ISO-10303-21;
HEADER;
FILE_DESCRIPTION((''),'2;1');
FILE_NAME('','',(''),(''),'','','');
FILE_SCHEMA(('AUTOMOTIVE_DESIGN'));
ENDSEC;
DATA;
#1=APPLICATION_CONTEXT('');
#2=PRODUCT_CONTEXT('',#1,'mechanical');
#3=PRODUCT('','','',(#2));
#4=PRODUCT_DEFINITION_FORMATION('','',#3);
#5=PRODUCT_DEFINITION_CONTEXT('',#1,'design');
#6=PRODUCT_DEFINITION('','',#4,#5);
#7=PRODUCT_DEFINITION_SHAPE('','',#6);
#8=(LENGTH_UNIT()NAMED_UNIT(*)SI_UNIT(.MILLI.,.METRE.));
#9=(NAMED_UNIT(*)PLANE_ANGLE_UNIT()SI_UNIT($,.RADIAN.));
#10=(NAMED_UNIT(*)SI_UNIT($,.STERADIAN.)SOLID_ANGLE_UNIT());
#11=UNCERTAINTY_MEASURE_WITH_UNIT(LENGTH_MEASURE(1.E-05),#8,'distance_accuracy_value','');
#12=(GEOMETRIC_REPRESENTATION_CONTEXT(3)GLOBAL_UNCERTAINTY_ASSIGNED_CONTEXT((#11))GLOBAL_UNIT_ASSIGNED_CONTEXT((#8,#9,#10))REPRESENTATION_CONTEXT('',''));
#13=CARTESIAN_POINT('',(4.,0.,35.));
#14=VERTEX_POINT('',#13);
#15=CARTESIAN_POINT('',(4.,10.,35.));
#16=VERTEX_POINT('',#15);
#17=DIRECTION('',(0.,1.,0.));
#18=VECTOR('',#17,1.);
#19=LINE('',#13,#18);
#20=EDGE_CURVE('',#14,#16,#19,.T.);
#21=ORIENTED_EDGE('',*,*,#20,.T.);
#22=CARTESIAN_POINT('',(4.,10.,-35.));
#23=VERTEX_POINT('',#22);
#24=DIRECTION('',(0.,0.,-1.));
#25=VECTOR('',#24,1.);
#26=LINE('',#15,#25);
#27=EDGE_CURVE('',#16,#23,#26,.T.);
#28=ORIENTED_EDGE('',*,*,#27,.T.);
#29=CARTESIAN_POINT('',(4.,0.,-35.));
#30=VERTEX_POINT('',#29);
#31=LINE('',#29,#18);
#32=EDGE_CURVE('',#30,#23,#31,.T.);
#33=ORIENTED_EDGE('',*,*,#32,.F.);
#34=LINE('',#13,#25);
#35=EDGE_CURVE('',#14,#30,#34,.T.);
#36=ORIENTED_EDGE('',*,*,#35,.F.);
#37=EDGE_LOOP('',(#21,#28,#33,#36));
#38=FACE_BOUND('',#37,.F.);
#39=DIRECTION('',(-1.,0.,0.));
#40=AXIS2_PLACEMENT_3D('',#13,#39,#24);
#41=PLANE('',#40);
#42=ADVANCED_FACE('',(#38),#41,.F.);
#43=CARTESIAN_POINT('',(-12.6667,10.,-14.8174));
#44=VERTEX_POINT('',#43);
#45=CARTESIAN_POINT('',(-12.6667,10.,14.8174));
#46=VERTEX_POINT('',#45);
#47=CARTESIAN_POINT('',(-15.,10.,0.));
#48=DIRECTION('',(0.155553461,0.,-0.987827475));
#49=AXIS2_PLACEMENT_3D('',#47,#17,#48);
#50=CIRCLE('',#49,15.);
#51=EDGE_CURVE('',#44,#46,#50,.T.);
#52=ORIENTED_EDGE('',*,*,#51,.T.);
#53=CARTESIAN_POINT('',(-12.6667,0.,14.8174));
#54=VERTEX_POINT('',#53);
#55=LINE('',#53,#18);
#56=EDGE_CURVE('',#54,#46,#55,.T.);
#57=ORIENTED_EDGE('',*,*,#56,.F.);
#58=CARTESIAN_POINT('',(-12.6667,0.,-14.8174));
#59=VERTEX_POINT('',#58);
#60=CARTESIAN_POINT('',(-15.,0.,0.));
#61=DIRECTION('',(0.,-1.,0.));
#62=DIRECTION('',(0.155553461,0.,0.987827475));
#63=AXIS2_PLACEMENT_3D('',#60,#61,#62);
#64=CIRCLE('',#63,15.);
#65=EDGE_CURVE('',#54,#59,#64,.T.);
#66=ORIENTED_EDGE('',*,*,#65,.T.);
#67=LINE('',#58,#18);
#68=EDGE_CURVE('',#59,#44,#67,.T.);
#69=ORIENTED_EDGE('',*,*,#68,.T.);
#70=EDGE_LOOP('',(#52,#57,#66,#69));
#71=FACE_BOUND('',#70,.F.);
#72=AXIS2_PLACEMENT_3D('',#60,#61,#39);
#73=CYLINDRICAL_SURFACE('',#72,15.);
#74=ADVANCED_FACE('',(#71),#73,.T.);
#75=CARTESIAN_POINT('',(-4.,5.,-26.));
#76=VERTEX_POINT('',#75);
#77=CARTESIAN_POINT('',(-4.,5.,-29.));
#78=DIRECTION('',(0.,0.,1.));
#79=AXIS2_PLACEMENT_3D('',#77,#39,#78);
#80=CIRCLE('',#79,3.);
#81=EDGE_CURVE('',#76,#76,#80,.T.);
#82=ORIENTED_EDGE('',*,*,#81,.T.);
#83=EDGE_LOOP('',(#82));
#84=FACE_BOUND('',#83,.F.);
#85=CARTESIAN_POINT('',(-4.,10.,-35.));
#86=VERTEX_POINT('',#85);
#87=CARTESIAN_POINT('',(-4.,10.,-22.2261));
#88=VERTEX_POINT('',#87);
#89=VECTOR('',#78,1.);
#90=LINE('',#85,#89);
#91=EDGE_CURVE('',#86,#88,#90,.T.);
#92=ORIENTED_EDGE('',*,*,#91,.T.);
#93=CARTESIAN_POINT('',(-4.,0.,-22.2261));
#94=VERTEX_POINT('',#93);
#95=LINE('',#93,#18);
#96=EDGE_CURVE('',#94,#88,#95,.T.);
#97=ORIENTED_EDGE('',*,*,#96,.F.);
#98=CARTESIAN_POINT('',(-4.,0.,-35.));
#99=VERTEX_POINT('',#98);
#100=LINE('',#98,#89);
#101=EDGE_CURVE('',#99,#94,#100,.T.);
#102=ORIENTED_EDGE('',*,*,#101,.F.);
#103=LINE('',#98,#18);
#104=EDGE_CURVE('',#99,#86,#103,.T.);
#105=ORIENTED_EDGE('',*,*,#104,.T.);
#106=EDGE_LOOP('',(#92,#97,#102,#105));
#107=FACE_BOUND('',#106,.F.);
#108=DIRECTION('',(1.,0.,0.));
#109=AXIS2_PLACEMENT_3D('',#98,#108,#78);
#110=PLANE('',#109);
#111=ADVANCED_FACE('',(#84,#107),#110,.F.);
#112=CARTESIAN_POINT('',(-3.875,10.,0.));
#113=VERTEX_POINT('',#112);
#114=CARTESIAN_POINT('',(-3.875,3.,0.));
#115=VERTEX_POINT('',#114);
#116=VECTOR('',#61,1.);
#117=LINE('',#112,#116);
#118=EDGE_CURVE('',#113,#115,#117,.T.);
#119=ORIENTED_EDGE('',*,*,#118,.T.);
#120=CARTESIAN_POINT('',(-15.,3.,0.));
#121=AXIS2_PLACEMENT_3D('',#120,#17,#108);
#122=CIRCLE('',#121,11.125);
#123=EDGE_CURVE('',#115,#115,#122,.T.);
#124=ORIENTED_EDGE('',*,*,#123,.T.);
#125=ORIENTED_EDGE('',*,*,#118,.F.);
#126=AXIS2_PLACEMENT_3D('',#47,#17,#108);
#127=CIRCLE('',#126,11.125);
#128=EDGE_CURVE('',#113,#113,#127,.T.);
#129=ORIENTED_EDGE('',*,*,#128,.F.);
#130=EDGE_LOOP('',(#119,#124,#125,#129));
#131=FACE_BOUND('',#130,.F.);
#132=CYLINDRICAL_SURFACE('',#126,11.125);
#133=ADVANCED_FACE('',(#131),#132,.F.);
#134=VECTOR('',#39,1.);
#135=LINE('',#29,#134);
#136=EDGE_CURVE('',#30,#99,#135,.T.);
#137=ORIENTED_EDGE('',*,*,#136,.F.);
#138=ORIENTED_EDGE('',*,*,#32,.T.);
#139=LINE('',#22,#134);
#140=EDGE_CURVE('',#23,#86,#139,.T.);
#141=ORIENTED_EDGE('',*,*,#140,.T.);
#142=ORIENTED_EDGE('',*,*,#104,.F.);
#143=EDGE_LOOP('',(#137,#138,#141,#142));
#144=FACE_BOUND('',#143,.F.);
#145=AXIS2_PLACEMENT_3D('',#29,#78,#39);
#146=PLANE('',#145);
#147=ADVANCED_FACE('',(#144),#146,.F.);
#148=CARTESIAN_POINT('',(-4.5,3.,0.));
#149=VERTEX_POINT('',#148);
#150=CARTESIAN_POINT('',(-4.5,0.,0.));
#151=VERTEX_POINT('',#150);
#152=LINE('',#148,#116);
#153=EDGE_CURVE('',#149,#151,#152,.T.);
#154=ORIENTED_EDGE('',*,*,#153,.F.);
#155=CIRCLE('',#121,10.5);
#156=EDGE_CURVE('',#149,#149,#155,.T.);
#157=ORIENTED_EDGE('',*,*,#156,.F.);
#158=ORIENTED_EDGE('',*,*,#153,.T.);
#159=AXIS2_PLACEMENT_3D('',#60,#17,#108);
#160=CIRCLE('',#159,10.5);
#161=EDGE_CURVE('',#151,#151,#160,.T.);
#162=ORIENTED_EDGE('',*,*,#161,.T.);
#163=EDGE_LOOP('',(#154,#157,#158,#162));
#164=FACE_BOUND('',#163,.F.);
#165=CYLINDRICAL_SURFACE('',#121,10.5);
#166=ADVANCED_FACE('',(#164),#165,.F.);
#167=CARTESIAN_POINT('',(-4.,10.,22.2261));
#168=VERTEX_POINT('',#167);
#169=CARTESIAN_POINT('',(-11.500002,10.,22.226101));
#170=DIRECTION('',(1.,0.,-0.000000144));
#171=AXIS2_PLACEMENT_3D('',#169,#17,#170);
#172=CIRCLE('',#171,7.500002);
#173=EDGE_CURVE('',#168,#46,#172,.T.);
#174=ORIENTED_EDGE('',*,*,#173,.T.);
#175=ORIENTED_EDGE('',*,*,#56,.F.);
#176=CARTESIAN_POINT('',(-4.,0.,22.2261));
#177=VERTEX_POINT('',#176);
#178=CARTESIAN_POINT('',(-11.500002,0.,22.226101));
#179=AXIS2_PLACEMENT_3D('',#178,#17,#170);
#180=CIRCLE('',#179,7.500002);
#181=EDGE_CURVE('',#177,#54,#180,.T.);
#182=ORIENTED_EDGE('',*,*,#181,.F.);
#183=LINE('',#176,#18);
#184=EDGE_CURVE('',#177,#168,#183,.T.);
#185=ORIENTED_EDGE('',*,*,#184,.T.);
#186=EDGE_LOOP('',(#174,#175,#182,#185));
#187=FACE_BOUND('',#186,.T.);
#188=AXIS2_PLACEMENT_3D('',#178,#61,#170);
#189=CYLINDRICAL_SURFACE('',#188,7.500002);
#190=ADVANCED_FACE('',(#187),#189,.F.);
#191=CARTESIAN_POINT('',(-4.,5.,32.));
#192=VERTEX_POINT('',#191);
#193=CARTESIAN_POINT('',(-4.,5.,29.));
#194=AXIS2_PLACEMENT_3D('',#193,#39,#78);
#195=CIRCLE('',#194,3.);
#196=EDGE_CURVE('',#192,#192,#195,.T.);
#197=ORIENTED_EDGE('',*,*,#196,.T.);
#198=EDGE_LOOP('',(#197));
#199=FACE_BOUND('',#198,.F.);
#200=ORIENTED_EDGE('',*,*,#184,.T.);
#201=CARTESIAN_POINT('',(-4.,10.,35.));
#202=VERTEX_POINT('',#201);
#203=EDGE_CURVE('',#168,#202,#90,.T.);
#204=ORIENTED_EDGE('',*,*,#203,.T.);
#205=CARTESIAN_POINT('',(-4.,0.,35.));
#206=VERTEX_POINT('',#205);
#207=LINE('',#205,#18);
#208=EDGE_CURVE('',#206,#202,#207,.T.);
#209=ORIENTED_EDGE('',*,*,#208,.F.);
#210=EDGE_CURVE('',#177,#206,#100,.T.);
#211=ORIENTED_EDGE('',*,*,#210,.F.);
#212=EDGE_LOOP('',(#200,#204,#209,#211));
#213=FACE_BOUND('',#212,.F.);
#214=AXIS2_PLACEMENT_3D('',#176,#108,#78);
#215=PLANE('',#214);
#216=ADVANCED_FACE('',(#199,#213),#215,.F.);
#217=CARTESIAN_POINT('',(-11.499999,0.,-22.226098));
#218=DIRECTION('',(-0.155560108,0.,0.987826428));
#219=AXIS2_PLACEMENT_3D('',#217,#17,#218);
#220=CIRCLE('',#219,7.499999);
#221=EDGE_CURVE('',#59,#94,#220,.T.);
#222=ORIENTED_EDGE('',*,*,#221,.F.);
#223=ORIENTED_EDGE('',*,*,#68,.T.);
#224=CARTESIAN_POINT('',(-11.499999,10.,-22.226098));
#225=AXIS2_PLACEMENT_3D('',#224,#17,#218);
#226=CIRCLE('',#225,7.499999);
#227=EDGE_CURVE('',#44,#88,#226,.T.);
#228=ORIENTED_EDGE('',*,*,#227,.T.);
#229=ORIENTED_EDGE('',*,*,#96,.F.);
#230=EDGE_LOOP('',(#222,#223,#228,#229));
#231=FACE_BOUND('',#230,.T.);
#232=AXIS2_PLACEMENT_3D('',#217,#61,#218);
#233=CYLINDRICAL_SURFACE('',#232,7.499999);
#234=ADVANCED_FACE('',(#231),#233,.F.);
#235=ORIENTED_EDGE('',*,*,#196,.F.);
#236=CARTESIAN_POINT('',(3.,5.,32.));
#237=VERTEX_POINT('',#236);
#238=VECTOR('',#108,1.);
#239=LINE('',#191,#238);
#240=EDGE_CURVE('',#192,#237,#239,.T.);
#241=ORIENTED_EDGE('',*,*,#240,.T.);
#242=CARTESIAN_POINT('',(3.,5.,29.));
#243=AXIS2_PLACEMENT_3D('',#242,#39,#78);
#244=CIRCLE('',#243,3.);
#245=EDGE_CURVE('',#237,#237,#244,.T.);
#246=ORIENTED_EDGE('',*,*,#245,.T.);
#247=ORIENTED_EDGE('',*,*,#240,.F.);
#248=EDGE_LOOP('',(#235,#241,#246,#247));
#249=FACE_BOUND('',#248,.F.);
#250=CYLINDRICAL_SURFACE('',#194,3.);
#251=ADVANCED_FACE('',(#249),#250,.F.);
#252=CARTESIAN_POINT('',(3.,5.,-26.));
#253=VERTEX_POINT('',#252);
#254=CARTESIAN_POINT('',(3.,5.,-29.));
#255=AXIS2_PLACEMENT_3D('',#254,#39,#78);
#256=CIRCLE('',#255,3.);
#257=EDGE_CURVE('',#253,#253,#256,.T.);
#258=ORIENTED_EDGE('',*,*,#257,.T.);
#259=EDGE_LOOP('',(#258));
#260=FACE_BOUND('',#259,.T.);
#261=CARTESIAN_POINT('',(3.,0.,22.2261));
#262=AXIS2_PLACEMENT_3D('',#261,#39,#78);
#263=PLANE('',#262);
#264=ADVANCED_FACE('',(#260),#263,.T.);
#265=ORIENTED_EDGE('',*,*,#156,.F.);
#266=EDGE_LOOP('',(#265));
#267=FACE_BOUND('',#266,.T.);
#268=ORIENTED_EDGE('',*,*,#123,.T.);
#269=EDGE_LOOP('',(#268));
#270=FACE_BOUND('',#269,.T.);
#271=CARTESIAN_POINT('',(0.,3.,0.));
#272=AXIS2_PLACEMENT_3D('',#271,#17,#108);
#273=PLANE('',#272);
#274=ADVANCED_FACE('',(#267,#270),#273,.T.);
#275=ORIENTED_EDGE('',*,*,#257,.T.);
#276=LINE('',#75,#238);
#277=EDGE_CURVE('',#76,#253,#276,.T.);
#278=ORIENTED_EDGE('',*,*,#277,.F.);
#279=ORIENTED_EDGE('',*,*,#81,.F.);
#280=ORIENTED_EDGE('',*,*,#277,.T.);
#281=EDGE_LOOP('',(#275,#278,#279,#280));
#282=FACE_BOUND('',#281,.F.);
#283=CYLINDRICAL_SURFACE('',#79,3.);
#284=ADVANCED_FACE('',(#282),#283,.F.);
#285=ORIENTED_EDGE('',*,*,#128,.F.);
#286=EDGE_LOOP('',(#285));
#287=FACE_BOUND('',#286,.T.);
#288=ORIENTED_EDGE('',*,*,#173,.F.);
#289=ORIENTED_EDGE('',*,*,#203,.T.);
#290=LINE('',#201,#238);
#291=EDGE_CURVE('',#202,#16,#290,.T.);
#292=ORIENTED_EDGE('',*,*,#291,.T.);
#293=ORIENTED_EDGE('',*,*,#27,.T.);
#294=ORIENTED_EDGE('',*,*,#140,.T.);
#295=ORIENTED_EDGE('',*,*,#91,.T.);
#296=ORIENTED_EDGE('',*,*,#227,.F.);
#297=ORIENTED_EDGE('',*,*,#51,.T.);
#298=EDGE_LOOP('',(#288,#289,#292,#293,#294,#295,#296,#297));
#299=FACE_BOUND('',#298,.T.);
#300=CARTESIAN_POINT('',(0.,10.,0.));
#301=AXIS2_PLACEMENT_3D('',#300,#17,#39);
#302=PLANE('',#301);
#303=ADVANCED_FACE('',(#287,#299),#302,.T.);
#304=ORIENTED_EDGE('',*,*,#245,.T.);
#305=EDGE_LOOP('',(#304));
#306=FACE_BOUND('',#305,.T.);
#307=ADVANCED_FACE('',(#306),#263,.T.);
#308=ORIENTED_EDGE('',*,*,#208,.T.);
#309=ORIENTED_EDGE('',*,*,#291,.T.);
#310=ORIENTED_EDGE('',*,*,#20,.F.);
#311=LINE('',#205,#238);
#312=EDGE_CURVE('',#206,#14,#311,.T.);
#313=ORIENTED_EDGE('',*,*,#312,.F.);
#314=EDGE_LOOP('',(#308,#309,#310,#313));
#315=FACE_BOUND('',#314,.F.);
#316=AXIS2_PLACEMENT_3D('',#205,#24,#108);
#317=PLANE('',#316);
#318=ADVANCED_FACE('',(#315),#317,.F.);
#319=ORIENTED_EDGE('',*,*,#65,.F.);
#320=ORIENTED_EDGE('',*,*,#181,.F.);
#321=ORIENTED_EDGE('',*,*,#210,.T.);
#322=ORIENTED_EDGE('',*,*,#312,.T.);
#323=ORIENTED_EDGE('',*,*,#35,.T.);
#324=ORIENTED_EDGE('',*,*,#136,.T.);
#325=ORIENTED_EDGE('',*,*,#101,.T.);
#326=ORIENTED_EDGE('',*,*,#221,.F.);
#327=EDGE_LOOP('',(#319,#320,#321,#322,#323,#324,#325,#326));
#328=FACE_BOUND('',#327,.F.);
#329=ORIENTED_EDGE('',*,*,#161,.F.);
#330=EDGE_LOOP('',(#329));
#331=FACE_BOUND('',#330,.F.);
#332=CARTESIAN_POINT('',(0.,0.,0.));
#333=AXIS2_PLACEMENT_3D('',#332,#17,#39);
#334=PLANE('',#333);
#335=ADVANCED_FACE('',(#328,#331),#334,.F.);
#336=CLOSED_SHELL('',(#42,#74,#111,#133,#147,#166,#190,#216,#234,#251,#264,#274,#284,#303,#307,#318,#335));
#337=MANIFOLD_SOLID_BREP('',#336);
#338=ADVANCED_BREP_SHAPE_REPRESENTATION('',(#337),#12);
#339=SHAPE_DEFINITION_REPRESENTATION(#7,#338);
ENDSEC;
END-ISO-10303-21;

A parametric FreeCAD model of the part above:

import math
import FreeCAD as App
import Part
import Sketcher

V = App.Vector

doc = App.newDocument("Part")
body = doc.addObject("PartDesign::Body", "Body")

sketch1 = body.newObject("Sketcher::SketchObject", "Sketch")
sketch1.AttachmentSupport = (doc.getObject("XZ_Plane"), [""])
sketch1.MapMode = "FlatFace"
sketch1.addGeometry([
    Part.LineSegment(V(-4, 22, 0), V(-4, 35, 0)),
    Part.LineSegment(V(-4, 35, 0), V(4, 35, 0)),
    Part.LineSegment(V(4, 35, 0), V(4, -35, 0)),
    Part.LineSegment(V(4, -35, 0), V(-4, -35, 0)),
    Part.LineSegment(V(-4, -35, 0), V(-4, -22, 0)),
    Part.ArcOfCircle(Part.Circle(V(-12, -22, 0), V(0, 0, 1), 8), math.radians(0), math.radians(99)),
    Part.ArcOfCircle(Part.Circle(V(-15, 0, 0), V(0, 0, 1), 15), math.radians(81), math.radians(279)),
    Part.ArcOfCircle(Part.Circle(V(-12, 22, 0), V(0, 0, 1), 8), math.radians(-99), math.radians(0)),
], False)
sketch1.addConstraint([
    Sketcher.Constraint("Coincident", 0, 2, 1, 1),
    Sketcher.Constraint("Coincident", 1, 2, 2, 1),
    Sketcher.Constraint("Coincident", 2, 2, 3, 1),
    Sketcher.Constraint("Coincident", 3, 2, 4, 1),
    Sketcher.Constraint("Tangent", 4, 2, 5, 1),
    Sketcher.Constraint("Tangent", 5, 2, 6, 2),
    Sketcher.Constraint("Tangent", 6, 1, 7, 1),
    Sketcher.Constraint("Tangent", 7, 2, 0, 1),
    Sketcher.Constraint("Vertical", 0),
    Sketcher.Constraint("Horizontal", 1),
    Sketcher.Constraint("Vertical", 2),
    Sketcher.Constraint("Horizontal", 3),
    Sketcher.Constraint("Vertical", 4),
    Sketcher.Constraint("Equal", 5, 7),
    Sketcher.Constraint("Symmetric", 0, 2, 2, 2, -1, 1),
    Sketcher.Constraint("Symmetric", 5, 3, 7, 3, -1),
    Sketcher.Constraint("Radius", 6, 15.0),
    Sketcher.Constraint("Radius", 5, 7.5),
    Sketcher.Constraint("DistanceX", 1, 1, 1, 2, 8.0),
    Sketcher.Constraint("DistanceY", 2, 2, 2, 1, 70.0),
    Sketcher.Constraint("DistanceX", 6, 3, -1, 1, 15.0),
])
pad1 = body.newObject("PartDesign::Pad", "Pad")
pad1.Profile = sketch1
pad1.Length = 10
pad1.Reversed = True

sketch2 = body.newObject("Sketcher::SketchObject", "Sketch001")
sketch2.AttachmentSupport = (doc.getObject("XZ_Plane"), [""])
sketch2.MapMode = "FlatFace"
sketch2.AttachmentOffset = App.Placement(V(0, 0, -10), App.Rotation())
sketch2.addGeometry(Part.Circle(V(-15, 0, 0), V(0, 0, 1), 11), False)
sketch2.addConstraint([
    Sketcher.Constraint("PointOnObject", 0, 3, -1),
    Sketcher.Constraint("Diameter", 0, 22.25),
    Sketcher.Constraint("DistanceX", 0, 3, -1, 1, 15.0),
])
pocket1 = body.newObject("PartDesign::Pocket", "Pocket")
pocket1.Profile = sketch2
pocket1.Length = 7
pocket1.Reversed = True

sketch3 = body.newObject("Sketcher::SketchObject", "Sketch002")
sketch3.AttachmentSupport = (doc.getObject("XZ_Plane"), [""])
sketch3.MapMode = "FlatFace"
sketch3.AttachmentOffset = App.Placement(V(0, 0, -3), App.Rotation())
sketch3.addGeometry(Part.Circle(V(-15, 0, 0), V(0, 0, 1), 10), False)
sketch3.addConstraint([
    Sketcher.Constraint("PointOnObject", 0, 3, -1),
    Sketcher.Constraint("Diameter", 0, 21.0),
    Sketcher.Constraint("DistanceX", 0, 3, -1, 1, 15.0),
])
pocket2 = body.newObject("PartDesign::Pocket", "Pocket001")
pocket2.Profile = sketch3
pocket2.Length = 7
pocket2.Reversed = True

sketch4 = body.newObject("Sketcher::SketchObject", "Sketch003")
sketch4.AttachmentSupport = (doc.getObject("YZ_Plane"), [""])
sketch4.MapMode = "FlatFace"
sketch4.AttachmentOffset = App.Placement(V(0, 0, -4), App.Rotation())
sketch4.addGeometry([
    Part.Circle(V(5, 29, 0), V(0, 0, 1), 3),
    Part.Circle(V(5, -29, 0), V(0, 0, 1), 3),
], False)
sketch4.addConstraint([
    Sketcher.Constraint("Equal", 0, 1),
    Sketcher.Constraint("Symmetric", 0, 3, 1, 3, -1),
    Sketcher.Constraint("Diameter", 0, 6.0),
    Sketcher.Constraint("DistanceX", -1, 1, 0, 3, 5.0),
    Sketcher.Constraint("DistanceY", -1, 1, 0, 3, 29.0),
])
pocket3 = body.newObject("PartDesign::Pocket", "Pocket002")
pocket3.Profile = sketch4
pocket3.Length = 7
pocket3.Reversed = True

doc.recompute()
